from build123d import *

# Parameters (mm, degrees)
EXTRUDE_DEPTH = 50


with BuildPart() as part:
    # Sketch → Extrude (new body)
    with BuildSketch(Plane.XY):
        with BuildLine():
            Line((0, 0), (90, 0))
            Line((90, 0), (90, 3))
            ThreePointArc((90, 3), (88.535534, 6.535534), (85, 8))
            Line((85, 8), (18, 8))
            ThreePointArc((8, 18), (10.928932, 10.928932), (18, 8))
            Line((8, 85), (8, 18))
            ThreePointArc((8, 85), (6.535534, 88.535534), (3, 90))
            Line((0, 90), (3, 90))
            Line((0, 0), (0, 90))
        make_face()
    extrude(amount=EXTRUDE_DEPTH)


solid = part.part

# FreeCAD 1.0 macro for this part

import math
import FreeCAD as App
import Part
import Sketcher
from FreeCAD import Vector

doc = App.newDocument("Part")
body = doc.addObject("PartDesign::Body", "Body")

sketch1 = doc.addObject("Sketcher::SketchObject", "Sketch")
body.addObject(sketch1)
sketch1.AttachmentSupport = (doc.XY_Plane, [""])
sketch1.MapMode = "FlatFace"
sketch1.addGeometry([
    Part.LineSegment(Vector(0, 0, 0), Vector(90, 0, 0)),
    Part.LineSegment(Vector(90, 0, 0), Vector(90, 3, 0)),
    Part.ArcOfCircle(Part.Circle(Vector(85, 3, 0), Vector(0, 0, 1), 5), math.radians(0), math.radians(90)),
    Part.LineSegment(Vector(85, 8, 0), Vector(18, 8, 0)),
    Part.ArcOfCircle(Part.Circle(Vector(18, 18, 0), Vector(0, 0, 1), 10), math.radians(180), math.radians(270)),
    Part.LineSegment(Vector(8, 18, 0), Vector(8, 85, 0)),
    Part.ArcOfCircle(Part.Circle(Vector(3, 85, 0), Vector(0, 0, 1), 5), math.radians(0), math.radians(90)),
    Part.LineSegment(Vector(3, 90, 0), Vector(0, 90, 0)),
    Part.LineSegment(Vector(0, 90, 0), Vector(0, 0, 0)),
], False)
sketch1.addConstraint([
    Sketcher.Constraint("Coincident", 0, 2, 1, 1),
    Sketcher.Constraint("Tangent", 1, 2, 2, 1),
    Sketcher.Constraint("Tangent", 2, 2, 3, 1),
    Sketcher.Constraint("Tangent", 3, 2, 4, 2),
    Sketcher.Constraint("Tangent", 4, 1, 5, 1),
    Sketcher.Constraint("Tangent", 5, 2, 6, 1),
    Sketcher.Constraint("Tangent", 6, 2, 7, 1),
    Sketcher.Constraint("Coincident", 7, 2, 8, 1),
    Sketcher.Constraint("Coincident", 8, 2, 0, 1),
    Sketcher.Constraint("Horizontal", 0),
    Sketcher.Constraint("Vertical", 1),
    Sketcher.Constraint("Horizontal", 3),
    Sketcher.Constraint("Vertical", 5),
    Sketcher.Constraint("Horizontal", 7),
    Sketcher.Constraint("Vertical", 8),
    Sketcher.Constraint("Coincident", 8, 2, -1, 1),
    Sketcher.Constraint("Equal", 2, 6),
    Sketcher.Constraint("Equal", 7, 1),
    Sketcher.Constraint("Equal", 3, 5),
    Sketcher.Constraint("Radius", 2, 5.0),
    Sketcher.Constraint("Radius", 4, 9.999999),
    Sketcher.Constraint("DistanceX", 0, 1, 0, 2, 90.0),
    Sketcher.Constraint("DistanceX", 3, 2, 3, 1, 67.0),
])
pad1 = doc.addObject("PartDesign::Pad", "Pad")
body.addObject(pad1)
pad1.Profile = sketch1
pad1.Length = 50

doc.recompute()
